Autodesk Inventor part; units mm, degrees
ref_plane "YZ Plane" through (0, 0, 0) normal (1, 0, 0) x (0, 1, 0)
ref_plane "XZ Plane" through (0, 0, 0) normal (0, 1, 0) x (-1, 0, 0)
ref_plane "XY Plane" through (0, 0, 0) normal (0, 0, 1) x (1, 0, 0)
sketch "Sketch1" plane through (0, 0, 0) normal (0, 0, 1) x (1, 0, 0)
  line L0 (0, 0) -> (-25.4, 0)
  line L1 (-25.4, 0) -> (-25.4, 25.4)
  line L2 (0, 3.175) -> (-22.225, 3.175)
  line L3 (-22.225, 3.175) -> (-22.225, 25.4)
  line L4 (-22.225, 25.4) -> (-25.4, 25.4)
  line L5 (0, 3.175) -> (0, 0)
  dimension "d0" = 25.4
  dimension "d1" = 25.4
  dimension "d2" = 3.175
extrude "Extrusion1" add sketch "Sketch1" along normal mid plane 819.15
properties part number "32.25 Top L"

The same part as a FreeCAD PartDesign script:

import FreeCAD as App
import Part
import Sketcher
from FreeCAD import Vector
Q = App.Units.Quantity

doc = App.newDocument("Part")
params = doc.addObject("Spreadsheet::Sheet", "Params")
for row, (alias, value) in enumerate([
    ("sketch1_width", "1 in"),
    ("sketch1_width2", "0.125 in"),
    ("pad1_length", "32.25 in"),
], start=1):
    params.set(f"A{row}", alias)
    params.set(f"B{row}", "=" + value)
    params.setAlias(f"B{row}", alias)

body = doc.addObject("PartDesign::Body", "Body")

sketch1 = doc.addObject("Sketcher::SketchObject", "Sketch")
body.addObject(sketch1)
sketch1.AttachmentSupport = (doc.XY_Plane, [""])
sketch1.MapMode = "FlatFace"
sketch1.addGeometry([
    Part.LineSegment(Vector(-25.4, 0, 0), Vector(0, 0, 0)),
    Part.LineSegment(Vector(0, 0, 0), Vector(0, 3.2, 0)),
    Part.LineSegment(Vector(0, 3.2, 0), Vector(-22.2, 3.2, 0)),
    Part.LineSegment(Vector(-22.2, 3.2, 0), Vector(-22.2, 25.4, 0)),
    Part.LineSegment(Vector(-22.2, 25.4, 0), Vector(-25.4, 25.4, 0)),
    Part.LineSegment(Vector(-25.4, 25.4, 0), Vector(-25.4, 0, 0)),
], False)
sketch1.addConstraint([
    Sketcher.Constraint("Coincident", 0, 2, 1, 1),
    Sketcher.Constraint("Coincident", 1, 2, 2, 1),
    Sketcher.Constraint("Coincident", 2, 2, 3, 1),
    Sketcher.Constraint("Coincident", 3, 2, 4, 1),
    Sketcher.Constraint("Coincident", 4, 2, 5, 1),
    Sketcher.Constraint("Coincident", 5, 2, 0, 1),
    Sketcher.Constraint("Horizontal", 0),
    Sketcher.Constraint("Vertical", 1),
    Sketcher.Constraint("Horizontal", 2),
    Sketcher.Constraint("Vertical", 3),
    Sketcher.Constraint("Horizontal", 4),
    Sketcher.Constraint("Vertical", 5),
    Sketcher.Constraint("Coincident", 0, 2, -1, 1),
    Sketcher.Constraint("Equal", 4, 1),
    Sketcher.Constraint("Equal", 2, 3),
    Sketcher.Constraint("DistanceX", 0, 1, 0, 2, Q("1 in")),
    Sketcher.Constraint("DistanceX", 4, 2, 4, 1, Q("0.125 in")),
])
sketch1.setExpression("Constraints[15]", "Params.sketch1_width")
sketch1.setExpression("Constraints[16]", "Params.sketch1_width2")
pad1 = doc.addObject("PartDesign::Pad", "Pad")
body.addObject(pad1)
pad1.Profile = sketch1
pad1.setExpression("Length", "Params.pad1_length")
pad1.Midplane = True

doc.recompute()
